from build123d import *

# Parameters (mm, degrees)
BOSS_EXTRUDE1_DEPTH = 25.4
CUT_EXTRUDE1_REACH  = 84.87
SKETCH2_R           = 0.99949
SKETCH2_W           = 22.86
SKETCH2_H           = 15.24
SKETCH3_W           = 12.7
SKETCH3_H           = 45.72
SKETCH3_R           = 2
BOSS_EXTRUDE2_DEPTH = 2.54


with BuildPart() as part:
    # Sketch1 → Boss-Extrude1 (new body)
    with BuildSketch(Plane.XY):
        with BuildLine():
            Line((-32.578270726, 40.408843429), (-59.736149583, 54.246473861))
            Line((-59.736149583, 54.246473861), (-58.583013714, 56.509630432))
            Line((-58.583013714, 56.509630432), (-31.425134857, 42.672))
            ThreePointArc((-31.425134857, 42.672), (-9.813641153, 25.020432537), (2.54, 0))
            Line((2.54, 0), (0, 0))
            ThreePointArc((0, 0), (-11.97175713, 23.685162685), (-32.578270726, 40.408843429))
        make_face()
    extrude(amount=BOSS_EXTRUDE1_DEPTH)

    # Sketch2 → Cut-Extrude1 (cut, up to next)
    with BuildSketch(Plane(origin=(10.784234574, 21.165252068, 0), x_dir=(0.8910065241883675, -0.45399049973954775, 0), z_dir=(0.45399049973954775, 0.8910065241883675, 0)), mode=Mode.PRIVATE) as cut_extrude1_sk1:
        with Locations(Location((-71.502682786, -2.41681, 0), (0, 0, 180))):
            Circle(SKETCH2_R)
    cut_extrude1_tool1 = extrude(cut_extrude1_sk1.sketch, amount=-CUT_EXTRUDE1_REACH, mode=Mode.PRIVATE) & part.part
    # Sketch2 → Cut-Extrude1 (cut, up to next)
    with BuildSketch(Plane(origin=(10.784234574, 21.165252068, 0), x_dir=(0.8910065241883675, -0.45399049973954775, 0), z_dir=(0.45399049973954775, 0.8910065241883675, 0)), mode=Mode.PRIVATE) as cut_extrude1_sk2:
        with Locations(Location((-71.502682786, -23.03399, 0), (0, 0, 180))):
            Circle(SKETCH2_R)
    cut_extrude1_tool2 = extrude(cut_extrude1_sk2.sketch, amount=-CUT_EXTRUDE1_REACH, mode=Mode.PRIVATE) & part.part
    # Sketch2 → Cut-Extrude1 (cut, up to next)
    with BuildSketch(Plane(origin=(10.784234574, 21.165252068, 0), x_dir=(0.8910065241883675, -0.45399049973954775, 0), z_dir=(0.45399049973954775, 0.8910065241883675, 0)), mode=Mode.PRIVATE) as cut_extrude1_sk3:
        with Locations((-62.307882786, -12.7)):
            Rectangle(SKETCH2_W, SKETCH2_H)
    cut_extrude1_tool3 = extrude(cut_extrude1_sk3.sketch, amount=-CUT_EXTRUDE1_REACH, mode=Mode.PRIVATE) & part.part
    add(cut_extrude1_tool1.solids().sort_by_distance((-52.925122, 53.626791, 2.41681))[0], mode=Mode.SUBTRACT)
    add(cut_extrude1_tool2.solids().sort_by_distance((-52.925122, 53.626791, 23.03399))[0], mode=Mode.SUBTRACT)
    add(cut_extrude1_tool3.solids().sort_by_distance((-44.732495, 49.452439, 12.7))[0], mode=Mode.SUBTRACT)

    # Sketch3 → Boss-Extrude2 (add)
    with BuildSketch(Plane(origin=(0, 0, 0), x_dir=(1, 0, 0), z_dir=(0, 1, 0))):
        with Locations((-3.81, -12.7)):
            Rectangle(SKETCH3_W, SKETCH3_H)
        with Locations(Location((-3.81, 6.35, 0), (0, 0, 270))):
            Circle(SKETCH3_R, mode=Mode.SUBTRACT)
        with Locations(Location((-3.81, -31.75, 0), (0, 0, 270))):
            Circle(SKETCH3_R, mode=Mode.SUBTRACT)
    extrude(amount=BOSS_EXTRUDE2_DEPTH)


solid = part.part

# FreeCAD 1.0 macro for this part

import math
import FreeCAD as App
import Part
import Sketcher
Q = App.Units.Quantity


def add_polygon(sketch, points):
    """Adds a closed chain of lines whose ends are joined by coincident constraints."""
    first, n = sketch.GeometryCount, len(points)
    for a, b in zip(points, points[1:] + points[:1]):
        sketch.addGeometry(Part.LineSegment(App.Vector(*a, 0), App.Vector(*b, 0)), False)
    for i in range(n):
        sketch.addConstraint(Sketcher.Constraint("Coincident", first + i, 2, first + (i + 1) % n, 1))

doc = App.newDocument("Part")
body = doc.addObject("PartDesign::Body", "Body")

# Sketch on XY plane
sketch1 = body.newObject("Sketcher::SketchObject", "Sketch")
sketch1.AttachmentSupport = (doc.getObject("XY_Plane"), [""])
sketch1.MapMode = "FlatFace"
sketch1.addGeometry([
    Part.LineSegment(App.Vector(-59.73615, 54.246474, 0), App.Vector(-32.578271, 40.408843, 0)),  # 0
    Part.ArcOfCircle(Part.Circle(App.Vector(-61.406667, -16.170071, 0), App.Vector(0, 0, 1), 63.5), math.radians(14.752657), math.radians(63)),  # 1
    Part.LineSegment(App.Vector(0, 0, 0), App.Vector(2.54, 0, 0)),  # 2
    Part.ArcOfCircle(Part.Circle(App.Vector(-61.299863, -15.960456, 0), App.Vector(0, 0, 1), 65.804744), math.radians(14.036658), math.radians(63)),  # 3
    Part.LineSegment(App.Vector(-31.425135, 42.672, 0), App.Vector(-58.583014, 56.50963, 0)),  # 4
    Part.LineSegment(App.Vector(-58.583014, 56.50963, 0), App.Vector(-59.73615, 54.246474, 0)),  # 5
], False)
sketch1.addConstraint([
    Sketcher.Constraint("Tangent", 0, 2, 1, 2),
    Sketcher.Constraint("Coincident", 1, 1, 2, 1),
    Sketcher.Constraint("Coincident", 2, 2, 3, 1),
    Sketcher.Constraint("Tangent", 3, 2, 4, 1),
    Sketcher.Constraint("Coincident", 4, 2, 5, 1),
    Sketcher.Constraint("Coincident", 5, 2, 0, 1),
    Sketcher.Constraint("Horizontal", 2),
    Sketcher.Constraint("Coincident", 1, 1, -1, 1),
    Sketcher.Constraint("Parallel", 0, 4),
    Sketcher.Constraint("Perpendicular", 4, 5),
    Sketcher.Constraint("Equal", 0, 4),
    Sketcher.Constraint("Radius", 1, Q("2.5 in")),
    Sketcher.Constraint("DistanceX", 2, 1, 2, 2, Q("0.1 in")),
    Sketcher.Constraint("Angle", 0, Q("-27 deg")),
    Sketcher.Constraint("Distance", 0, Q("1.2 in")),
    Sketcher.Constraint("Distance", 5, Q("0.1 in")),
    Sketcher.Constraint("DistanceY", -1, 1, 3, 2, Q("1.68 in")),
])
pad1 = body.newObject("PartDesign::Pad", "Pad")
pad1.Profile = sketch1
pad1.Length = Q("1 in")

# Sketch on an angled plane
sketch2 = body.newObject("Sketcher::SketchObject", "Sketch001")
sketch2.Placement = App.Placement(App.Vector(10.784235, 21.165252, 0), App.Rotation(App.Vector(0.891006524, -0.4539905, 0), App.Vector(0, 0, -1), App.Vector(0.4539905, 0.891006524, 0), "ZXY"))
sketch2.addGeometry(Part.Circle(App.Vector(-71.502683, -2.41681, 0), App.Vector(0, 0, 1), 0.99949), False)
sketch2.addConstraint([
    Sketcher.Constraint("Diameter", 0, Q("0.0787 in")),
    Sketcher.Constraint("DistanceY", 0, 3, -1, 1, Q("2.41681 mm")),
    Sketcher.Constraint("DistanceX", 0, 3, -1, 1, Q("71.502683 mm")),
])
pocket1 = body.newObject("PartDesign::Pocket", "Pocket")
pocket1.Profile = sketch2
pocket1.Type = "UpToFirst"

# Sketch on an angled plane
sketch3 = body.newObject("Sketcher::SketchObject", "Sketch002")
sketch3.Placement = App.Placement(App.Vector(10.784235, 21.165252, 0), App.Rotation(App.Vector(0.891006524, -0.4539905, 0), App.Vector(0, 0, -1), App.Vector(0.4539905, 0.891006524, 0), "ZXY"))
sketch3.addGeometry(Part.Circle(App.Vector(-71.502683, -23.03399, 0), App.Vector(0, 0, 1), 0.99949), False)
sketch3.addConstraint([
    Sketcher.Constraint("Diameter", 0, Q("0.0787 in")),
    Sketcher.Constraint("DistanceY", 0, 3, -1, 1, Q("23.03399 mm")),
    Sketcher.Constraint("DistanceX", 0, 3, -1, 1, Q("71.502683 mm")),
])
pocket2 = body.newObject("PartDesign::Pocket", "Pocket001")
pocket2.Profile = sketch3
pocket2.Type = "UpToFirst"

# Sketch on an angled plane
sketch4 = body.newObject("Sketcher::SketchObject", "Sketch003")
sketch4.Placement = App.Placement(App.Vector(10.784235, 21.165252, 0), App.Rotation(App.Vector(0.891006524, -0.4539905, 0), App.Vector(0, 0, -1), App.Vector(0.4539905, 0.891006524, 0), "ZXY"))
add_polygon(sketch4, [(-73.737883, -5.08), (-73.737883, -20.32), (-50.877883, -20.32), (-50.877883, -5.08)])  # lines 0-3
sketch4.addConstraint([
    Sketcher.Constraint("Vertical", 0),
    Sketcher.Constraint("Horizontal", 1),
    Sketcher.Constraint("Vertical", 2),
    Sketcher.Constraint("Horizontal", 3),
    Sketcher.Constraint("DistanceX", 1, 1, 1, 2, Q("0.9 in")),
    Sketcher.Constraint("DistanceY", 0, 2, 0, 1, Q("0.6 in")),
    Sketcher.Constraint("DistanceY", 0, 2, -1, 1, Q("0.8 in")),
    Sketcher.Constraint("DistanceX", 0, 2, -1, 1, Q("73.737883 mm")),
])
pocket3 = body.newObject("PartDesign::Pocket", "Pocket002")
pocket3.Profile = sketch4
pocket3.Type = "UpToFirst"

# Sketch on XZ plane
sketch5 = body.newObject("Sketcher::SketchObject", "Sketch004")
sketch5.AttachmentSupport = (doc.getObject("XZ_Plane"), [""])
sketch5.MapMode = "FlatFace"
add_polygon(sketch5, [(-10.16, -10.16), (-10.16, 35.56), (2.54, 35.56), (2.54, -10.16)])  # lines 0-3
sketch5.addGeometry(Part.Circle(App.Vector(-3.81, 31.75, 0), App.Vector(0, 0, 1), 2), False)  # 4
sketch5.addGeometry(Part.Circle(App.Vector(-3.81, -6.35, 0), App.Vector(0, 0, 1), 2), False)  # 5
sketch5.addConstraint([
    Sketcher.Constraint("Vertical", 0),
    Sketcher.Constraint("Horizontal", 1),
    Sketcher.Constraint("Vertical", 2),
    Sketcher.Constraint("Horizontal", 3),
    Sketcher.Constraint("Equal", 4, 5),
    Sketcher.Constraint("Vertical", 4, 3, 5, 3),
    Sketcher.Constraint("DistanceX", 1, 1, 1, 2, Q("0.5 in")),
    Sketcher.Constraint("DistanceY", 0, 1, 0, 2, Q("1.8 in")),
    Sketcher.Constraint("DistanceX", 0, 2, -1, 1, Q("0.4 in")),
    Sketcher.Constraint("DistanceY", -1, 1, 0, 2, Q("1.4 in")),
    Sketcher.Constraint("DistanceY", 5, 3, 4, 3, Q("1.5 in")),
    Sketcher.Constraint("Diameter", 4, Q("4 mm")),
    Sketcher.Constraint("DistanceX", 4, 3, -1, 1, Q("0.15 in")),
    Sketcher.Constraint("DistanceY", -1, 1, 4, 3, Q("1.25 in")),
])
pad2 = body.newObject("PartDesign::Pad", "Pad001")
pad2.Profile = sketch5
pad2.Length = Q("0.1 in")
pad2.Reversed = True

doc.recompute()
